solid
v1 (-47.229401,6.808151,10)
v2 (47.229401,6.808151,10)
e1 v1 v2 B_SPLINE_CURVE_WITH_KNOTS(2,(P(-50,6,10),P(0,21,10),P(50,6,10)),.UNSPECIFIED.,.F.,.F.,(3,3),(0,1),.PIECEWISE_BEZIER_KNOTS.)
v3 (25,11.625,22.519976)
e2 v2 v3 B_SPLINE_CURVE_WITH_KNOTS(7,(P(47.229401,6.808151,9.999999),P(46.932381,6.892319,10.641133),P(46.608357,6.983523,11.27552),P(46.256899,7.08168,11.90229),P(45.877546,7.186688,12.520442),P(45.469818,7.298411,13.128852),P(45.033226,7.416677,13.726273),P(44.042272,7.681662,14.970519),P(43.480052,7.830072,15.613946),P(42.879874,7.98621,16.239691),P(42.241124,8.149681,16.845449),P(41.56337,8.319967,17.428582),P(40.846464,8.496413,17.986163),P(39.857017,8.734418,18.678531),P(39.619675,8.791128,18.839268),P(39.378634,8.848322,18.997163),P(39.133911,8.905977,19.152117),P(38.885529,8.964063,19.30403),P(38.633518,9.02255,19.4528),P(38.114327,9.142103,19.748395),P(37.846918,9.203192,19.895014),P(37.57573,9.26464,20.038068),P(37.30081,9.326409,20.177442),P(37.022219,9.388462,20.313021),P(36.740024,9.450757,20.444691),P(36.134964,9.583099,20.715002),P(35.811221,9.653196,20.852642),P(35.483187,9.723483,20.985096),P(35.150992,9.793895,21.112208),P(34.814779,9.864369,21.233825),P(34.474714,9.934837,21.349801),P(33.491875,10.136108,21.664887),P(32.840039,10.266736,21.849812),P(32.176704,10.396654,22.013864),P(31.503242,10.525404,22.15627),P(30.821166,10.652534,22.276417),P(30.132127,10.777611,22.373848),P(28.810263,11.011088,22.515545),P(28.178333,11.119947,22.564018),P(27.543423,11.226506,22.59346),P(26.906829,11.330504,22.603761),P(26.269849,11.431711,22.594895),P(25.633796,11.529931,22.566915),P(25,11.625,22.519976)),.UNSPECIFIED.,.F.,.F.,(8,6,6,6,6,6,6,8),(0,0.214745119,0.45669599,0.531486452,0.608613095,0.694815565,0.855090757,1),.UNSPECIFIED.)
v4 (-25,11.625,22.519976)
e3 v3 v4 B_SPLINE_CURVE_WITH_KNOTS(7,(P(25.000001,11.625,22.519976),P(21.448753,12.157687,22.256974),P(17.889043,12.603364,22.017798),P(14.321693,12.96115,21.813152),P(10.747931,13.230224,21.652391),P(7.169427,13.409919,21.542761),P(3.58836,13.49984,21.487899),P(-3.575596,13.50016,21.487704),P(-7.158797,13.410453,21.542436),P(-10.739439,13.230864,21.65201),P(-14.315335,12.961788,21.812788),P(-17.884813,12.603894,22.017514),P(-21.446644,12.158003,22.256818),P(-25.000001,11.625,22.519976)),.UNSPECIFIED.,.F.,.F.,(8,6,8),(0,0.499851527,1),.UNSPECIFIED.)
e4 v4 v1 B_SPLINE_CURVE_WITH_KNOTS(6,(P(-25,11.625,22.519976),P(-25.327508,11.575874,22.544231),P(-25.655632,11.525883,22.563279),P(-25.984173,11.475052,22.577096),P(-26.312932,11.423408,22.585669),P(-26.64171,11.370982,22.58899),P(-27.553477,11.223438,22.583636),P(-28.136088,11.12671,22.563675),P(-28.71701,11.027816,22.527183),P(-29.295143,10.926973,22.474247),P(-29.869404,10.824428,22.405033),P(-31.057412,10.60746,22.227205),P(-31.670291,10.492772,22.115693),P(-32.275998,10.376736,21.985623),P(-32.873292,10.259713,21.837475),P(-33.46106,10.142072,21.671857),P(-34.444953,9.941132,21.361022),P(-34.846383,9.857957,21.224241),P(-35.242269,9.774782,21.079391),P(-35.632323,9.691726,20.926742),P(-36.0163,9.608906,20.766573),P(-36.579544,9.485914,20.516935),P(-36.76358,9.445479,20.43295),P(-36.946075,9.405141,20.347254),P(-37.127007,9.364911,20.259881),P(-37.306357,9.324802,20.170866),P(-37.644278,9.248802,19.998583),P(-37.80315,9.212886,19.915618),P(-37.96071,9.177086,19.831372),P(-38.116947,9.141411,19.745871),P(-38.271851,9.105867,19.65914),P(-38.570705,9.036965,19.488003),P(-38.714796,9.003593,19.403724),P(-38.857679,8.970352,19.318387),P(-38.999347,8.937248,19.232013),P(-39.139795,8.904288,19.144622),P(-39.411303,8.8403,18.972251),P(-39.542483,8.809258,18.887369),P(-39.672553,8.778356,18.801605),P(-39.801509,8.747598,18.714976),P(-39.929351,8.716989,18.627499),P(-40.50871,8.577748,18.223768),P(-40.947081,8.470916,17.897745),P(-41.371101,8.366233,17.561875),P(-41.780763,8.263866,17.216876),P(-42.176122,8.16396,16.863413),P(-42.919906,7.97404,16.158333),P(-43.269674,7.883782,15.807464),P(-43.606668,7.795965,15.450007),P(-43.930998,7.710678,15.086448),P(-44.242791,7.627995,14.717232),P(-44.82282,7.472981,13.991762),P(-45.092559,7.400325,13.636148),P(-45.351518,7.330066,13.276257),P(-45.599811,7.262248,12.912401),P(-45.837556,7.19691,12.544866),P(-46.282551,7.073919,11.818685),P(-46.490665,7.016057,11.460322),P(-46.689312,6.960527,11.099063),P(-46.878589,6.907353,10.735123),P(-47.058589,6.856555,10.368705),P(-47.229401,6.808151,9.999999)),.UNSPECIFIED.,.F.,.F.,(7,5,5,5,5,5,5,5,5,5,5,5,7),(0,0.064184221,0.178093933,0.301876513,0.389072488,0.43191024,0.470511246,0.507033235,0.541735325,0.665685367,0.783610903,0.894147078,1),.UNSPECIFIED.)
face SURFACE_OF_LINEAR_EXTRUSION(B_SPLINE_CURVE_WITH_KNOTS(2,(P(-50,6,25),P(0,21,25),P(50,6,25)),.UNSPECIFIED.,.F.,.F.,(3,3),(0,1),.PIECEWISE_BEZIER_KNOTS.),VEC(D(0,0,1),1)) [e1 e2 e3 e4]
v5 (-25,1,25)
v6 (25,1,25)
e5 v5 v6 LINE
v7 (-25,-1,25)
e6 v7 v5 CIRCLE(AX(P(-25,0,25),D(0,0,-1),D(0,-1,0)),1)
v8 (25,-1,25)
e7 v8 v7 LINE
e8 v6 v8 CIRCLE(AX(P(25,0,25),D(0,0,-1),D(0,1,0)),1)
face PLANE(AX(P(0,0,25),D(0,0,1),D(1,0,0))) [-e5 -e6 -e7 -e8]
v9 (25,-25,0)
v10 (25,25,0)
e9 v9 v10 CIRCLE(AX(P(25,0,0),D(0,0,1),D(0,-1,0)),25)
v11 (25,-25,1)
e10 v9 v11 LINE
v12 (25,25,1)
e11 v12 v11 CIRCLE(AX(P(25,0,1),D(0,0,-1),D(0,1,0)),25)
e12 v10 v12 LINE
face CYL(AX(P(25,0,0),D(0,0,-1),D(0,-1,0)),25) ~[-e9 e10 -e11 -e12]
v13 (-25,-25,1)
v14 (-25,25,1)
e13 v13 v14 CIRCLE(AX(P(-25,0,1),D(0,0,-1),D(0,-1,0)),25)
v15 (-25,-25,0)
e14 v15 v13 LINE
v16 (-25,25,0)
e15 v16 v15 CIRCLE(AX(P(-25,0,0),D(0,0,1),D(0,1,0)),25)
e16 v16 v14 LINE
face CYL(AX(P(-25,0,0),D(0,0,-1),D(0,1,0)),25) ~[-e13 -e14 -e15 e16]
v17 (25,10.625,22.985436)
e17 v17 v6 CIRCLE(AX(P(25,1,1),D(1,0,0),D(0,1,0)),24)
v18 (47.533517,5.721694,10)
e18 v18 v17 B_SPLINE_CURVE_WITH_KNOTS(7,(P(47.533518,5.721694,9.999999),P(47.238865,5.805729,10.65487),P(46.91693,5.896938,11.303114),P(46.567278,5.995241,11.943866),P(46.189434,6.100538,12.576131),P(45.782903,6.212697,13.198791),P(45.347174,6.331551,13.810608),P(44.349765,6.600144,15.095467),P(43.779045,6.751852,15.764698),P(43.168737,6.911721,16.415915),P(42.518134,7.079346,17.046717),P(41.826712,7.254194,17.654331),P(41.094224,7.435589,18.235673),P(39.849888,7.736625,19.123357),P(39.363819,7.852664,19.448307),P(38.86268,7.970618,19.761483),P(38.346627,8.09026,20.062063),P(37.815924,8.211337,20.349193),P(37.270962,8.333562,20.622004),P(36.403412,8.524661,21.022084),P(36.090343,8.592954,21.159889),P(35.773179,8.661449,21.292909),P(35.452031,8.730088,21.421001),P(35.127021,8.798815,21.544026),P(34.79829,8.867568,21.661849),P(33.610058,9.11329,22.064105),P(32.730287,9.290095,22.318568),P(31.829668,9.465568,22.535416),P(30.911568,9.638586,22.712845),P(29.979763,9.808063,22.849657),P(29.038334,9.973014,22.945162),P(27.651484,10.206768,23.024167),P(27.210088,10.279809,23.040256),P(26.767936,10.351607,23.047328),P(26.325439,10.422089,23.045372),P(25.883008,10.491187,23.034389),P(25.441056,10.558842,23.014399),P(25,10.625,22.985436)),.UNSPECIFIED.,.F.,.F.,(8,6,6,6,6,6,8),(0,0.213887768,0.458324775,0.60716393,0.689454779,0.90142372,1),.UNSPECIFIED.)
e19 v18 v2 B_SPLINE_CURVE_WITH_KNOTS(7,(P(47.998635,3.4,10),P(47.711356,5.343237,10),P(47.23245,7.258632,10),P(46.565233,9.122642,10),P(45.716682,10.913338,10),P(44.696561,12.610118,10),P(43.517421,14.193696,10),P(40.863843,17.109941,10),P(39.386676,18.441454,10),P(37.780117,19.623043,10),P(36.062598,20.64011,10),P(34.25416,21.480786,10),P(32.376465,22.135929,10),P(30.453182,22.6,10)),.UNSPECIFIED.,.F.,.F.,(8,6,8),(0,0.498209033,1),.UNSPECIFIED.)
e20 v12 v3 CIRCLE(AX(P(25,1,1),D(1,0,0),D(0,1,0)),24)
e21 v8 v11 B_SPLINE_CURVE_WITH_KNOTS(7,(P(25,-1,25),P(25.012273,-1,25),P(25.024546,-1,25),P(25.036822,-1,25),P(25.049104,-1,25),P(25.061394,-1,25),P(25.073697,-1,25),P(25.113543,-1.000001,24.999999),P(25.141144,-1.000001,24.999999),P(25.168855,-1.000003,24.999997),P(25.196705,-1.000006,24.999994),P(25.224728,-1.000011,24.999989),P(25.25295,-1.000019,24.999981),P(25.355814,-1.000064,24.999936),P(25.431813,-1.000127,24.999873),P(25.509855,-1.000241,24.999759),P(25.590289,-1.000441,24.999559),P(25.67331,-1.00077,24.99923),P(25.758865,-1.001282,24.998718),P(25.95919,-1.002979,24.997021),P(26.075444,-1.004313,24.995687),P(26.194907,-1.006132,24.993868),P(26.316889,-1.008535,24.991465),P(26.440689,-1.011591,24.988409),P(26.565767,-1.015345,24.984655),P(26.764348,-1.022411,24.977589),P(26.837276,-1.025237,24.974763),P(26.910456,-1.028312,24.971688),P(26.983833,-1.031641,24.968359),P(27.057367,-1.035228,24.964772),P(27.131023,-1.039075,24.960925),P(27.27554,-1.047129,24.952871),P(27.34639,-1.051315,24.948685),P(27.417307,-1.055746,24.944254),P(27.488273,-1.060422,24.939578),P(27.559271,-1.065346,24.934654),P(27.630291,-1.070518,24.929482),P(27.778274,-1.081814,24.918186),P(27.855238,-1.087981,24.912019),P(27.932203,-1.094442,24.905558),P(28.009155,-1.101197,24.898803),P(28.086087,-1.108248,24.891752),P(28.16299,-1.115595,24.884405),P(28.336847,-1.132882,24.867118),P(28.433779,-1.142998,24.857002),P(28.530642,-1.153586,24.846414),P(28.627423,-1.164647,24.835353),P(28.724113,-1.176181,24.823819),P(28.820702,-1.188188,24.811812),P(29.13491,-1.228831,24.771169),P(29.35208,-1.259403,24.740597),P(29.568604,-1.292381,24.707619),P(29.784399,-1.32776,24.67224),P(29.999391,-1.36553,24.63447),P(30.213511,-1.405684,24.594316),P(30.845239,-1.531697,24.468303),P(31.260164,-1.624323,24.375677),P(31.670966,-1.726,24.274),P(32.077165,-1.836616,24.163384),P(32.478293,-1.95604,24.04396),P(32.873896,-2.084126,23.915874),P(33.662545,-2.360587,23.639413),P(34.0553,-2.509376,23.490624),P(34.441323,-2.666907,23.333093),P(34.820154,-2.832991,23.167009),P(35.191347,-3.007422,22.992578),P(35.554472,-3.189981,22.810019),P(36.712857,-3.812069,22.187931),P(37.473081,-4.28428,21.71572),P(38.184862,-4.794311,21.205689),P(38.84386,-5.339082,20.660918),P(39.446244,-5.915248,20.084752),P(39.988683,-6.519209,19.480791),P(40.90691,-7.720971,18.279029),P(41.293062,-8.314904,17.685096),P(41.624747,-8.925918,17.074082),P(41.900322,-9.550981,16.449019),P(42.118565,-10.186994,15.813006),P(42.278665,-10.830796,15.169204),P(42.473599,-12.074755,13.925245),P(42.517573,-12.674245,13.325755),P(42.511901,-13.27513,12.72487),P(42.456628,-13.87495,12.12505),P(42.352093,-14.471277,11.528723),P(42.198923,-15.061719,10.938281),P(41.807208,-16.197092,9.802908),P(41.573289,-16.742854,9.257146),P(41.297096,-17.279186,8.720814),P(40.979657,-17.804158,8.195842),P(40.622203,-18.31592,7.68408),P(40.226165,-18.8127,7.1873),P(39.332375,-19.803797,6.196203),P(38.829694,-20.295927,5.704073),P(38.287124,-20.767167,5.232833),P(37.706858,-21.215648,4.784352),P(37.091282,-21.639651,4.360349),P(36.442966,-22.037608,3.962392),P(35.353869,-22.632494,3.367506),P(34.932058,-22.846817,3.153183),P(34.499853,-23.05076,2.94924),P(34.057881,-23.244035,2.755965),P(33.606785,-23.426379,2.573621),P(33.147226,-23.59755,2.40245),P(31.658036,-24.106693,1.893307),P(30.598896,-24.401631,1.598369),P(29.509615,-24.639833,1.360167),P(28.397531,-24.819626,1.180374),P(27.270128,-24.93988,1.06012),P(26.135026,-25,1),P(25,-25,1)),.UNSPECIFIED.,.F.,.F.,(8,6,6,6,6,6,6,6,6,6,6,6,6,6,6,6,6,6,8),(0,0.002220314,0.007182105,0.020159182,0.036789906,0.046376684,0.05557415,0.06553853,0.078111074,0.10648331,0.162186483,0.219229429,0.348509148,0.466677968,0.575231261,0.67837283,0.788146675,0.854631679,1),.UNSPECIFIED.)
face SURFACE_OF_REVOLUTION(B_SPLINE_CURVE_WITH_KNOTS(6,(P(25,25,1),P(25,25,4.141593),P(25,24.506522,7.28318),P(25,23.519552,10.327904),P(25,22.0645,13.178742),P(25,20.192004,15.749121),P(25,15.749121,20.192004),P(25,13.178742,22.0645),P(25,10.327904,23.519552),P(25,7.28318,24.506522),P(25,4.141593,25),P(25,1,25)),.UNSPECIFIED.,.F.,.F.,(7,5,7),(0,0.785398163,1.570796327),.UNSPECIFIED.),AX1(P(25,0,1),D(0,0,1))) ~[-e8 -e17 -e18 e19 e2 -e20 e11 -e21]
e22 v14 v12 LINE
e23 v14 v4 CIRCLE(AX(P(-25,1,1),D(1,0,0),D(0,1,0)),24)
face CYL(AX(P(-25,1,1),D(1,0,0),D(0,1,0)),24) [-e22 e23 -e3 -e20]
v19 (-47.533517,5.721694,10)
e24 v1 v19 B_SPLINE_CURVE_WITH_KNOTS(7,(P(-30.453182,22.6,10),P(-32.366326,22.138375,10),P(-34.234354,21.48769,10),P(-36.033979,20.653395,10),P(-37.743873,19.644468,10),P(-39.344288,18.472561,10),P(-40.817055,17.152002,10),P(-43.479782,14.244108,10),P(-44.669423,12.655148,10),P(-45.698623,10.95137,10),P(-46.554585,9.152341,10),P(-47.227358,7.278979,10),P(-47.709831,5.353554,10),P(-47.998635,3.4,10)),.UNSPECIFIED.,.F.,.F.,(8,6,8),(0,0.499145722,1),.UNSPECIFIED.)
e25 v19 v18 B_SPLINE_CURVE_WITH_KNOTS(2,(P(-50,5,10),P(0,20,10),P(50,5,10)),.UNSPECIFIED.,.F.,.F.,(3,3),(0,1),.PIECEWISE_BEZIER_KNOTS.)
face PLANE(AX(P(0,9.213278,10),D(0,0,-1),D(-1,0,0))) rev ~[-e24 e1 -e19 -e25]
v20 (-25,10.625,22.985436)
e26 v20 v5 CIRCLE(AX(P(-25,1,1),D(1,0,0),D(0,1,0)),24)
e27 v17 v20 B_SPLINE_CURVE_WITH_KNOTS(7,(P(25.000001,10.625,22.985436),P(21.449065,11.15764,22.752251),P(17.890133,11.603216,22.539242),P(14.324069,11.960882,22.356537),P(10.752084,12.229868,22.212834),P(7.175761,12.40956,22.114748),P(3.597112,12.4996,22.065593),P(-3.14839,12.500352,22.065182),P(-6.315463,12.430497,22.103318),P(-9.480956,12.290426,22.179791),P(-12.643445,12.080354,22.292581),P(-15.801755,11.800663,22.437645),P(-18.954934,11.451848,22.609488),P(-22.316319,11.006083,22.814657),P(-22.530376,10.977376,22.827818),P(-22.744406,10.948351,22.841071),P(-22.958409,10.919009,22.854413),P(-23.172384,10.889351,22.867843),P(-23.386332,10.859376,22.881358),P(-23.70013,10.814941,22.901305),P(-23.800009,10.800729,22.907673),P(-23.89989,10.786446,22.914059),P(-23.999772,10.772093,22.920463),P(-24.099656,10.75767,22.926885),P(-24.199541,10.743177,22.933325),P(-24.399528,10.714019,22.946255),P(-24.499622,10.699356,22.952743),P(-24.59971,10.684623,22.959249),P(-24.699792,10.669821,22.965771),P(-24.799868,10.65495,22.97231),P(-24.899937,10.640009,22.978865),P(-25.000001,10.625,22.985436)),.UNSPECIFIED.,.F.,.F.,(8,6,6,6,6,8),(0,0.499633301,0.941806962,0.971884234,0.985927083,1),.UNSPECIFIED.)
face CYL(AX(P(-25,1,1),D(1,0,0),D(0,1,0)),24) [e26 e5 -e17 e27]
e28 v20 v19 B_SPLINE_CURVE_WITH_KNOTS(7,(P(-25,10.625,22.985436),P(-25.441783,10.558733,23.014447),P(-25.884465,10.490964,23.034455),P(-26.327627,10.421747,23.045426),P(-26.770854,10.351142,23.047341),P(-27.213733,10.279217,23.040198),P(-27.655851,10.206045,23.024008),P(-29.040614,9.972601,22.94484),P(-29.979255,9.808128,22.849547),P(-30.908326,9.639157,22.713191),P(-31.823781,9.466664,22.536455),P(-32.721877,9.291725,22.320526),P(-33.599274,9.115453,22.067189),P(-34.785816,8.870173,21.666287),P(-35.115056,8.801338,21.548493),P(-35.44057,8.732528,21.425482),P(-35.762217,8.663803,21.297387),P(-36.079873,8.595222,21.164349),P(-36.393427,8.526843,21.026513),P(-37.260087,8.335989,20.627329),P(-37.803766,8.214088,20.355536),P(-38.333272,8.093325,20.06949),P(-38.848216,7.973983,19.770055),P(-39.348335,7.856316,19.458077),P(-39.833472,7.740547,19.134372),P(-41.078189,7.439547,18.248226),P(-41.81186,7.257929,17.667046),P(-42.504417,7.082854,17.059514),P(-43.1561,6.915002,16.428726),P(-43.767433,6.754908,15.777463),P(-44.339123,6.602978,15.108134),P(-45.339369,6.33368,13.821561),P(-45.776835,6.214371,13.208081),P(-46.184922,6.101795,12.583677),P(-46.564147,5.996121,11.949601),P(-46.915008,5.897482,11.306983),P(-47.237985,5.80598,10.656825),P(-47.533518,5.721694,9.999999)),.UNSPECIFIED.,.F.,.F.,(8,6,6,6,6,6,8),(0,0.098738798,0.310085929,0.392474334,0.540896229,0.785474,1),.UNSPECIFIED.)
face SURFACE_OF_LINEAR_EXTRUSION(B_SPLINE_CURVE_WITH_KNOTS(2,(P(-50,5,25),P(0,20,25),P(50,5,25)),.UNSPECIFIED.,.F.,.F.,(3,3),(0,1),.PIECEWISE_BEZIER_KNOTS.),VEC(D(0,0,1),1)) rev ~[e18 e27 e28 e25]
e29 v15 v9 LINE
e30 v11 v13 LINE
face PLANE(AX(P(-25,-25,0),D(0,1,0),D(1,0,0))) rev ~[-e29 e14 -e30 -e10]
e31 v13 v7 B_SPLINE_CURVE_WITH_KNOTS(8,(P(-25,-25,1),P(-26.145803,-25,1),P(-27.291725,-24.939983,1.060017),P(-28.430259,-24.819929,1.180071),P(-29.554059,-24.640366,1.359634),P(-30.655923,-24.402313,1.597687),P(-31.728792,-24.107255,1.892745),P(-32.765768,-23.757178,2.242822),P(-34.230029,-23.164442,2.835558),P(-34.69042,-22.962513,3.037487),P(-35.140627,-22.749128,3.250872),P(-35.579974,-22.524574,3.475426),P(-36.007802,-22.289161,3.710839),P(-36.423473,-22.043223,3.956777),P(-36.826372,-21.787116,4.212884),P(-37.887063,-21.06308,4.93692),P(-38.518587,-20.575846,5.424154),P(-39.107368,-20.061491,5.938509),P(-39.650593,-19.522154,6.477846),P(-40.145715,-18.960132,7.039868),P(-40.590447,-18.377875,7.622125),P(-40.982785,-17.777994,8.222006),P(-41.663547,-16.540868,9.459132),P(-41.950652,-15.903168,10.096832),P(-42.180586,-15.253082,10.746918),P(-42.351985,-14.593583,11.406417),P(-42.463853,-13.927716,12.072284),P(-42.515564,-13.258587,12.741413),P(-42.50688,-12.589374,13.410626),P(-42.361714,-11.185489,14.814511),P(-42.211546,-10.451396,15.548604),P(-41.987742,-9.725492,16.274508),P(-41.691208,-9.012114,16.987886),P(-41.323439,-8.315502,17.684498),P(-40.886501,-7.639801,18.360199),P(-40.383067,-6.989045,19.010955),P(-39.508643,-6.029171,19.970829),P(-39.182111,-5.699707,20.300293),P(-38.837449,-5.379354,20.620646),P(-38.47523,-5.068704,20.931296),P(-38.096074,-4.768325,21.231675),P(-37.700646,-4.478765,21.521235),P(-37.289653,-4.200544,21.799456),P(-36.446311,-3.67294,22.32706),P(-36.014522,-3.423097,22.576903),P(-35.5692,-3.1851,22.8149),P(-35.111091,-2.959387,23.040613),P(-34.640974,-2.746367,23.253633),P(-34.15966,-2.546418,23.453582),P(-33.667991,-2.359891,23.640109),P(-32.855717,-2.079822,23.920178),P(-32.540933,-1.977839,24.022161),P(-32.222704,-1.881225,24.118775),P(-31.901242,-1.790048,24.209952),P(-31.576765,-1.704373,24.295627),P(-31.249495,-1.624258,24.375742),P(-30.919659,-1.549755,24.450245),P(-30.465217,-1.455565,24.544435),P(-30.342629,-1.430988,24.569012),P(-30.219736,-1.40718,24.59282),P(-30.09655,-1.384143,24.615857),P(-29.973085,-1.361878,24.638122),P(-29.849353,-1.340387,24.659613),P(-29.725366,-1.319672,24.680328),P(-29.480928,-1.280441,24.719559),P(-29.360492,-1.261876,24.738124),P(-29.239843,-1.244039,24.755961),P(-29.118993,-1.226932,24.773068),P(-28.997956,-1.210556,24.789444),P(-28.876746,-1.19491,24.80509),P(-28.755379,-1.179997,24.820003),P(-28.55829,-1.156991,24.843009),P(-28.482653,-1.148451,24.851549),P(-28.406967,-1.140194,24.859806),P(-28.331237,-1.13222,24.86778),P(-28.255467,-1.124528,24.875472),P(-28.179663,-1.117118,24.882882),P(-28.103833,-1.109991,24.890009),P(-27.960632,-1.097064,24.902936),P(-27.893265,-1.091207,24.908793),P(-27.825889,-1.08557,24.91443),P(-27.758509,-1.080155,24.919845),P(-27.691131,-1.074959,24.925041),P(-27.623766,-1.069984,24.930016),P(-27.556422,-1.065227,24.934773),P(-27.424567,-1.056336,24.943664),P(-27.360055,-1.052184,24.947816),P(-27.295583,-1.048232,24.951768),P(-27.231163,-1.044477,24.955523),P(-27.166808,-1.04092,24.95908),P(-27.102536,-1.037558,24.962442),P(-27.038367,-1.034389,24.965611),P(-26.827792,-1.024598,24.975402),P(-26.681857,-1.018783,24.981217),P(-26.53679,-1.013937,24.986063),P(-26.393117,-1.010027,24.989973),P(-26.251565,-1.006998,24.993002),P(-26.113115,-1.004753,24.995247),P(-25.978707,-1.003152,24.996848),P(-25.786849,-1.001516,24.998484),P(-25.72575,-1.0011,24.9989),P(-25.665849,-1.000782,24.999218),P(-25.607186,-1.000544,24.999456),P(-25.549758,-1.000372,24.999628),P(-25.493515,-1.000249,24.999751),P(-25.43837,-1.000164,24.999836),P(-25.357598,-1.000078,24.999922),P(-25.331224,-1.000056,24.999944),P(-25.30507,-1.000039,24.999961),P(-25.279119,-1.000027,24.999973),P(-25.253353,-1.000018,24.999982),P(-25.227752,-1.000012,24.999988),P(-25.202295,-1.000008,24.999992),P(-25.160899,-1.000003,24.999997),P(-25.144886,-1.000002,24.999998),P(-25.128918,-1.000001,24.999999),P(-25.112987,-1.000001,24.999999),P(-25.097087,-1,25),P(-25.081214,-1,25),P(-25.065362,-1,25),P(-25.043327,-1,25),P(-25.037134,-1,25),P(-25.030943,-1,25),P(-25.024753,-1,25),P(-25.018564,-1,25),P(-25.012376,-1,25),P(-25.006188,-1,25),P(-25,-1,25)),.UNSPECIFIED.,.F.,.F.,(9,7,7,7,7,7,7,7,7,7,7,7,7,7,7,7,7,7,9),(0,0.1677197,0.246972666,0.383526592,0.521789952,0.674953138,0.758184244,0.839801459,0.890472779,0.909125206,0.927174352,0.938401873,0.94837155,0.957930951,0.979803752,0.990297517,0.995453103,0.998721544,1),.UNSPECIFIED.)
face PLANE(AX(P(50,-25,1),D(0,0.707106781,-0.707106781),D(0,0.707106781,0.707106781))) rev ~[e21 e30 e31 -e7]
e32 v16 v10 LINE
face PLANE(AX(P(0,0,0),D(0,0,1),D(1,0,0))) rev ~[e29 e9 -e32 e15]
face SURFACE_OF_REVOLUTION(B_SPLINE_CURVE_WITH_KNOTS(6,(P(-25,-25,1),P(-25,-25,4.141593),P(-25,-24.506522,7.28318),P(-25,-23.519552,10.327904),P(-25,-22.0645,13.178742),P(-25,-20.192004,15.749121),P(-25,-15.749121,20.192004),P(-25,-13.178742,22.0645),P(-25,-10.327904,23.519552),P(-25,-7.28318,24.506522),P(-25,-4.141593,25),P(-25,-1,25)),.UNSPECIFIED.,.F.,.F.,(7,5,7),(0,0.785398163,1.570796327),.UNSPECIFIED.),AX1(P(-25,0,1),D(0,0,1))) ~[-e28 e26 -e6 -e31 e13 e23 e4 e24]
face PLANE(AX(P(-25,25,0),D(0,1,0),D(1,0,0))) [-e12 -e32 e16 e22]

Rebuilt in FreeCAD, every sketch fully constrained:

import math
import FreeCAD as App
import Part
import Sketcher
from FreeCAD import Vector
Q = App.Units.Quantity


def edges_at(feature, points):
    """Names of the edges that pass closest to the given points."""
    edges = feature.Shape.Edges
    near = lambda p: min(range(len(edges)), key=lambda i: edges[i].distToShape(Part.Vertex(*p))[0])
    return sorted({f"Edge{near(p) + 1}" for p in points})

doc = App.newDocument("Part")
params = doc.addObject("Spreadsheet::Sheet", "Params")
for row, (alias, value) in enumerate([
    ("sketch1_radius", "25 mm"),
    ("sketch1_width", "50 mm"),
    ("pad1_length", "25 mm"),
    ("fillet_radius", "24 mm"),
    ("sketch2_width", "25 mm"),
    ("pocket1_length", "100 mm"),
    ("pocket2_length", "15 mm"),
], start=1):
    params.set(f"A{row}", alias)
    params.set(f"B{row}", "=" + value)
    params.setAlias(f"B{row}", alias)

body = doc.addObject("PartDesign::Body", "Body")

sketch1 = body.newObject("Sketcher::SketchObject", "Sketch")
sketch1.AttachmentSupport = (doc.getObject("XY_Plane"), [""])
sketch1.MapMode = "FlatFace"
sketch1.addGeometry([
    Part.ArcOfCircle(Part.Circle(Vector(-25, 0, 0), Vector(0, 0, 1), 25), math.radians(90), math.radians(270)),
    Part.LineSegment(Vector(-25, -25, 0), Vector(25, -25, 0)),
    Part.ArcOfCircle(Part.Circle(Vector(25, 0, 0), Vector(0, 0, 1), 25), math.radians(-90), math.radians(90)),
    Part.LineSegment(Vector(25, 25, 0), Vector(-25, 25, 0)),
], False)
sketch1.addConstraint([
    Sketcher.Constraint("Tangent", 0, 2, 1, 1),
    Sketcher.Constraint("Tangent", 1, 2, 2, 1),
    Sketcher.Constraint("Tangent", 2, 2, 3, 1),
    Sketcher.Constraint("Tangent", 3, 2, 0, 1),
    Sketcher.Constraint("Horizontal", 1),
    Sketcher.Constraint("Horizontal", 3),
    Sketcher.Constraint("Symmetric", 0, 3, 2, 3, -1, 1),
    Sketcher.Constraint("Radius", 0, Q("25 mm")),
    Sketcher.Constraint("DistanceX", 1, 1, 1, 2, Q("50 mm")),
])
sketch1.setExpression("Constraints[7]", "Params.sketch1_radius")
sketch1.setExpression("Constraints[8]", "Params.sketch1_width")
pad1 = body.newObject("PartDesign::Pad", "Pad")
pad1.Profile = sketch1
pad1.setExpression("Length", "Params.pad1_length")
doc.recompute()

fillet = body.newObject("PartDesign::Fillet", "Fillet")
fillet.Base = (pad1, edges_at(pad1, [(0, 25, 25)]))
fillet.setExpression("Radius", "Params.fillet_radius")

sketch2 = body.newObject("Sketcher::SketchObject", "Sketch001")
sketch2.AttachmentSupport = (doc.getObject("YZ_Plane"), [""])
sketch2.MapMode = "FlatFace"
sketch2.AttachmentOffset = App.Placement(Vector(0, 0, 50), App.Rotation())
sketch2.addGeometry([
    Part.LineSegment(Vector(-25, 1, 0), Vector(0, 26, 0)),
    Part.LineSegment(Vector(0, 26, 0), Vector(-25, 26, 0)),
    Part.LineSegment(Vector(-25, 26, 0), Vector(-25, 1, 0)),
], False)
sketch2.addConstraint([
    Sketcher.Constraint("Coincident", 0, 2, 1, 1),
    Sketcher.Constraint("Coincident", 1, 2, 2, 1),
    Sketcher.Constraint("Coincident", 2, 2, 0, 1),
    Sketcher.Constraint("Horizontal", 1),
    Sketcher.Constraint("Vertical", 2),
    Sketcher.Constraint("PointOnObject", 0, 2, -2),
    Sketcher.Constraint("Equal", 1, 2),
    Sketcher.Constraint("DistanceX", 1, 2, 1, 1, Q("25 mm")),
    Sketcher.Constraint("DistanceY", -1, 1, 0, 2, Q("26 mm")),
])
sketch2.setExpression("Constraints[7]", "Params.sketch2_width")
pocket1 = body.newObject("PartDesign::Pocket", "Pocket")
pocket1.Profile = sketch2
pocket1.setExpression("Length", "Params.pocket1_length")

sketch3 = body.newObject("Sketcher::SketchObject", "Sketch002")
sketch3.AttachmentSupport = (doc.getObject("XY_Plane"), [""])
sketch3.MapMode = "FlatFace"
sketch3.AttachmentOffset = App.Placement(Vector(0, 0, 25), App.Rotation())
sketch3.addGeometry([
    Part.LineSegment(Vector(-50, 6, 0), Vector(-50, 5, 0)),
    Part.BSplineCurve([Vector(-50, 5, 0), Vector(0, 20, 0), Vector(50, 5, 0)], [3, 3], [0, 1], False, 2, [1, 1, 1], False),
    Part.LineSegment(Vector(50, 5, 0), Vector(50, 6, 0)),
    Part.BSplineCurve([Vector(-50, 6, 0), Vector(0, 21, 0), Vector(50, 6, 0)], [3, 3], [0, 1], False, 2, [1, 1, 1], False),
], False)
sketch3.addConstraint([
    Sketcher.Constraint("Block", 1),
    Sketcher.Constraint("Block", 3),
    Sketcher.Constraint("Coincident", 0, 2, 1, 1),
    Sketcher.Constraint("Coincident", 1, 2, 2, 1),
    Sketcher.Constraint("Coincident", 2, 2, 3, 2),
    Sketcher.Constraint("Coincident", 3, 1, 0, 1),
])
pocket2 = body.newObject("PartDesign::Pocket", "Pocket001")
pocket2.Profile = sketch3
pocket2.setExpression("Length", "Params.pocket2_length")

doc.recompute()
